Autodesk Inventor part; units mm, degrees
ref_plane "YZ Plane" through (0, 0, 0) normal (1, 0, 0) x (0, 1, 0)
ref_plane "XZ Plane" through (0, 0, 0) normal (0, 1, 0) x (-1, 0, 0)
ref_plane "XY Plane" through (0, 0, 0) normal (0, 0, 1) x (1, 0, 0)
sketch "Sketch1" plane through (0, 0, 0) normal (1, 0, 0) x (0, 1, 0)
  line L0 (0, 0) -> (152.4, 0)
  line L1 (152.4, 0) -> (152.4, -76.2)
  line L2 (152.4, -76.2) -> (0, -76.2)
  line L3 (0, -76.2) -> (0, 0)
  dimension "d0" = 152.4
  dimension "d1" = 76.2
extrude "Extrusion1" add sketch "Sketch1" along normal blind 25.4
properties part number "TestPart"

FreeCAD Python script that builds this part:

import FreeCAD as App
import Part
import Sketcher

V = App.Vector
Q = App.Units.Quantity

doc = App.newDocument("Part")
body = doc.addObject("PartDesign::Body", "Body")

# Sketch on YZ plane
sketch1 = body.newObject("Sketcher::SketchObject", "Sketch")
sketch1.AttachmentSupport = (doc.getObject("YZ_Plane"), [""])
sketch1.MapMode = "FlatFace"
sketch1.addGeometry([
    Part.LineSegment(V(152, 0, 0), V(0, 0, 0)),
    Part.LineSegment(V(0, 0, 0), V(0, -76, 0)),
    Part.LineSegment(V(0, -76, 0), V(152, -76, 0)),
    Part.LineSegment(V(152, -76, 0), V(152, 0, 0)),
], False)
sketch1.addConstraint([
    Sketcher.Constraint("Coincident", 0, 2, 1, 1),
    Sketcher.Constraint("Coincident", 1, 2, 2, 1),
    Sketcher.Constraint("Coincident", 2, 2, 3, 1),
    Sketcher.Constraint("Coincident", 3, 2, 0, 1),
    Sketcher.Constraint("Horizontal", 0),
    Sketcher.Constraint("Vertical", 1),
    Sketcher.Constraint("Horizontal", 2),
    Sketcher.Constraint("Vertical", 3),
    Sketcher.Constraint("Coincident", 0, 2, -1, 1),
    Sketcher.Constraint("DistanceX", 0, 2, 0, 1, Q("6 in")),
    Sketcher.Constraint("DistanceY", 1, 2, 1, 1, Q("3 in")),
])
pad1 = body.newObject("PartDesign::Pad", "Pad")
pad1.Profile = sketch1
pad1.Length = Q("1 in")

doc.recompute()
